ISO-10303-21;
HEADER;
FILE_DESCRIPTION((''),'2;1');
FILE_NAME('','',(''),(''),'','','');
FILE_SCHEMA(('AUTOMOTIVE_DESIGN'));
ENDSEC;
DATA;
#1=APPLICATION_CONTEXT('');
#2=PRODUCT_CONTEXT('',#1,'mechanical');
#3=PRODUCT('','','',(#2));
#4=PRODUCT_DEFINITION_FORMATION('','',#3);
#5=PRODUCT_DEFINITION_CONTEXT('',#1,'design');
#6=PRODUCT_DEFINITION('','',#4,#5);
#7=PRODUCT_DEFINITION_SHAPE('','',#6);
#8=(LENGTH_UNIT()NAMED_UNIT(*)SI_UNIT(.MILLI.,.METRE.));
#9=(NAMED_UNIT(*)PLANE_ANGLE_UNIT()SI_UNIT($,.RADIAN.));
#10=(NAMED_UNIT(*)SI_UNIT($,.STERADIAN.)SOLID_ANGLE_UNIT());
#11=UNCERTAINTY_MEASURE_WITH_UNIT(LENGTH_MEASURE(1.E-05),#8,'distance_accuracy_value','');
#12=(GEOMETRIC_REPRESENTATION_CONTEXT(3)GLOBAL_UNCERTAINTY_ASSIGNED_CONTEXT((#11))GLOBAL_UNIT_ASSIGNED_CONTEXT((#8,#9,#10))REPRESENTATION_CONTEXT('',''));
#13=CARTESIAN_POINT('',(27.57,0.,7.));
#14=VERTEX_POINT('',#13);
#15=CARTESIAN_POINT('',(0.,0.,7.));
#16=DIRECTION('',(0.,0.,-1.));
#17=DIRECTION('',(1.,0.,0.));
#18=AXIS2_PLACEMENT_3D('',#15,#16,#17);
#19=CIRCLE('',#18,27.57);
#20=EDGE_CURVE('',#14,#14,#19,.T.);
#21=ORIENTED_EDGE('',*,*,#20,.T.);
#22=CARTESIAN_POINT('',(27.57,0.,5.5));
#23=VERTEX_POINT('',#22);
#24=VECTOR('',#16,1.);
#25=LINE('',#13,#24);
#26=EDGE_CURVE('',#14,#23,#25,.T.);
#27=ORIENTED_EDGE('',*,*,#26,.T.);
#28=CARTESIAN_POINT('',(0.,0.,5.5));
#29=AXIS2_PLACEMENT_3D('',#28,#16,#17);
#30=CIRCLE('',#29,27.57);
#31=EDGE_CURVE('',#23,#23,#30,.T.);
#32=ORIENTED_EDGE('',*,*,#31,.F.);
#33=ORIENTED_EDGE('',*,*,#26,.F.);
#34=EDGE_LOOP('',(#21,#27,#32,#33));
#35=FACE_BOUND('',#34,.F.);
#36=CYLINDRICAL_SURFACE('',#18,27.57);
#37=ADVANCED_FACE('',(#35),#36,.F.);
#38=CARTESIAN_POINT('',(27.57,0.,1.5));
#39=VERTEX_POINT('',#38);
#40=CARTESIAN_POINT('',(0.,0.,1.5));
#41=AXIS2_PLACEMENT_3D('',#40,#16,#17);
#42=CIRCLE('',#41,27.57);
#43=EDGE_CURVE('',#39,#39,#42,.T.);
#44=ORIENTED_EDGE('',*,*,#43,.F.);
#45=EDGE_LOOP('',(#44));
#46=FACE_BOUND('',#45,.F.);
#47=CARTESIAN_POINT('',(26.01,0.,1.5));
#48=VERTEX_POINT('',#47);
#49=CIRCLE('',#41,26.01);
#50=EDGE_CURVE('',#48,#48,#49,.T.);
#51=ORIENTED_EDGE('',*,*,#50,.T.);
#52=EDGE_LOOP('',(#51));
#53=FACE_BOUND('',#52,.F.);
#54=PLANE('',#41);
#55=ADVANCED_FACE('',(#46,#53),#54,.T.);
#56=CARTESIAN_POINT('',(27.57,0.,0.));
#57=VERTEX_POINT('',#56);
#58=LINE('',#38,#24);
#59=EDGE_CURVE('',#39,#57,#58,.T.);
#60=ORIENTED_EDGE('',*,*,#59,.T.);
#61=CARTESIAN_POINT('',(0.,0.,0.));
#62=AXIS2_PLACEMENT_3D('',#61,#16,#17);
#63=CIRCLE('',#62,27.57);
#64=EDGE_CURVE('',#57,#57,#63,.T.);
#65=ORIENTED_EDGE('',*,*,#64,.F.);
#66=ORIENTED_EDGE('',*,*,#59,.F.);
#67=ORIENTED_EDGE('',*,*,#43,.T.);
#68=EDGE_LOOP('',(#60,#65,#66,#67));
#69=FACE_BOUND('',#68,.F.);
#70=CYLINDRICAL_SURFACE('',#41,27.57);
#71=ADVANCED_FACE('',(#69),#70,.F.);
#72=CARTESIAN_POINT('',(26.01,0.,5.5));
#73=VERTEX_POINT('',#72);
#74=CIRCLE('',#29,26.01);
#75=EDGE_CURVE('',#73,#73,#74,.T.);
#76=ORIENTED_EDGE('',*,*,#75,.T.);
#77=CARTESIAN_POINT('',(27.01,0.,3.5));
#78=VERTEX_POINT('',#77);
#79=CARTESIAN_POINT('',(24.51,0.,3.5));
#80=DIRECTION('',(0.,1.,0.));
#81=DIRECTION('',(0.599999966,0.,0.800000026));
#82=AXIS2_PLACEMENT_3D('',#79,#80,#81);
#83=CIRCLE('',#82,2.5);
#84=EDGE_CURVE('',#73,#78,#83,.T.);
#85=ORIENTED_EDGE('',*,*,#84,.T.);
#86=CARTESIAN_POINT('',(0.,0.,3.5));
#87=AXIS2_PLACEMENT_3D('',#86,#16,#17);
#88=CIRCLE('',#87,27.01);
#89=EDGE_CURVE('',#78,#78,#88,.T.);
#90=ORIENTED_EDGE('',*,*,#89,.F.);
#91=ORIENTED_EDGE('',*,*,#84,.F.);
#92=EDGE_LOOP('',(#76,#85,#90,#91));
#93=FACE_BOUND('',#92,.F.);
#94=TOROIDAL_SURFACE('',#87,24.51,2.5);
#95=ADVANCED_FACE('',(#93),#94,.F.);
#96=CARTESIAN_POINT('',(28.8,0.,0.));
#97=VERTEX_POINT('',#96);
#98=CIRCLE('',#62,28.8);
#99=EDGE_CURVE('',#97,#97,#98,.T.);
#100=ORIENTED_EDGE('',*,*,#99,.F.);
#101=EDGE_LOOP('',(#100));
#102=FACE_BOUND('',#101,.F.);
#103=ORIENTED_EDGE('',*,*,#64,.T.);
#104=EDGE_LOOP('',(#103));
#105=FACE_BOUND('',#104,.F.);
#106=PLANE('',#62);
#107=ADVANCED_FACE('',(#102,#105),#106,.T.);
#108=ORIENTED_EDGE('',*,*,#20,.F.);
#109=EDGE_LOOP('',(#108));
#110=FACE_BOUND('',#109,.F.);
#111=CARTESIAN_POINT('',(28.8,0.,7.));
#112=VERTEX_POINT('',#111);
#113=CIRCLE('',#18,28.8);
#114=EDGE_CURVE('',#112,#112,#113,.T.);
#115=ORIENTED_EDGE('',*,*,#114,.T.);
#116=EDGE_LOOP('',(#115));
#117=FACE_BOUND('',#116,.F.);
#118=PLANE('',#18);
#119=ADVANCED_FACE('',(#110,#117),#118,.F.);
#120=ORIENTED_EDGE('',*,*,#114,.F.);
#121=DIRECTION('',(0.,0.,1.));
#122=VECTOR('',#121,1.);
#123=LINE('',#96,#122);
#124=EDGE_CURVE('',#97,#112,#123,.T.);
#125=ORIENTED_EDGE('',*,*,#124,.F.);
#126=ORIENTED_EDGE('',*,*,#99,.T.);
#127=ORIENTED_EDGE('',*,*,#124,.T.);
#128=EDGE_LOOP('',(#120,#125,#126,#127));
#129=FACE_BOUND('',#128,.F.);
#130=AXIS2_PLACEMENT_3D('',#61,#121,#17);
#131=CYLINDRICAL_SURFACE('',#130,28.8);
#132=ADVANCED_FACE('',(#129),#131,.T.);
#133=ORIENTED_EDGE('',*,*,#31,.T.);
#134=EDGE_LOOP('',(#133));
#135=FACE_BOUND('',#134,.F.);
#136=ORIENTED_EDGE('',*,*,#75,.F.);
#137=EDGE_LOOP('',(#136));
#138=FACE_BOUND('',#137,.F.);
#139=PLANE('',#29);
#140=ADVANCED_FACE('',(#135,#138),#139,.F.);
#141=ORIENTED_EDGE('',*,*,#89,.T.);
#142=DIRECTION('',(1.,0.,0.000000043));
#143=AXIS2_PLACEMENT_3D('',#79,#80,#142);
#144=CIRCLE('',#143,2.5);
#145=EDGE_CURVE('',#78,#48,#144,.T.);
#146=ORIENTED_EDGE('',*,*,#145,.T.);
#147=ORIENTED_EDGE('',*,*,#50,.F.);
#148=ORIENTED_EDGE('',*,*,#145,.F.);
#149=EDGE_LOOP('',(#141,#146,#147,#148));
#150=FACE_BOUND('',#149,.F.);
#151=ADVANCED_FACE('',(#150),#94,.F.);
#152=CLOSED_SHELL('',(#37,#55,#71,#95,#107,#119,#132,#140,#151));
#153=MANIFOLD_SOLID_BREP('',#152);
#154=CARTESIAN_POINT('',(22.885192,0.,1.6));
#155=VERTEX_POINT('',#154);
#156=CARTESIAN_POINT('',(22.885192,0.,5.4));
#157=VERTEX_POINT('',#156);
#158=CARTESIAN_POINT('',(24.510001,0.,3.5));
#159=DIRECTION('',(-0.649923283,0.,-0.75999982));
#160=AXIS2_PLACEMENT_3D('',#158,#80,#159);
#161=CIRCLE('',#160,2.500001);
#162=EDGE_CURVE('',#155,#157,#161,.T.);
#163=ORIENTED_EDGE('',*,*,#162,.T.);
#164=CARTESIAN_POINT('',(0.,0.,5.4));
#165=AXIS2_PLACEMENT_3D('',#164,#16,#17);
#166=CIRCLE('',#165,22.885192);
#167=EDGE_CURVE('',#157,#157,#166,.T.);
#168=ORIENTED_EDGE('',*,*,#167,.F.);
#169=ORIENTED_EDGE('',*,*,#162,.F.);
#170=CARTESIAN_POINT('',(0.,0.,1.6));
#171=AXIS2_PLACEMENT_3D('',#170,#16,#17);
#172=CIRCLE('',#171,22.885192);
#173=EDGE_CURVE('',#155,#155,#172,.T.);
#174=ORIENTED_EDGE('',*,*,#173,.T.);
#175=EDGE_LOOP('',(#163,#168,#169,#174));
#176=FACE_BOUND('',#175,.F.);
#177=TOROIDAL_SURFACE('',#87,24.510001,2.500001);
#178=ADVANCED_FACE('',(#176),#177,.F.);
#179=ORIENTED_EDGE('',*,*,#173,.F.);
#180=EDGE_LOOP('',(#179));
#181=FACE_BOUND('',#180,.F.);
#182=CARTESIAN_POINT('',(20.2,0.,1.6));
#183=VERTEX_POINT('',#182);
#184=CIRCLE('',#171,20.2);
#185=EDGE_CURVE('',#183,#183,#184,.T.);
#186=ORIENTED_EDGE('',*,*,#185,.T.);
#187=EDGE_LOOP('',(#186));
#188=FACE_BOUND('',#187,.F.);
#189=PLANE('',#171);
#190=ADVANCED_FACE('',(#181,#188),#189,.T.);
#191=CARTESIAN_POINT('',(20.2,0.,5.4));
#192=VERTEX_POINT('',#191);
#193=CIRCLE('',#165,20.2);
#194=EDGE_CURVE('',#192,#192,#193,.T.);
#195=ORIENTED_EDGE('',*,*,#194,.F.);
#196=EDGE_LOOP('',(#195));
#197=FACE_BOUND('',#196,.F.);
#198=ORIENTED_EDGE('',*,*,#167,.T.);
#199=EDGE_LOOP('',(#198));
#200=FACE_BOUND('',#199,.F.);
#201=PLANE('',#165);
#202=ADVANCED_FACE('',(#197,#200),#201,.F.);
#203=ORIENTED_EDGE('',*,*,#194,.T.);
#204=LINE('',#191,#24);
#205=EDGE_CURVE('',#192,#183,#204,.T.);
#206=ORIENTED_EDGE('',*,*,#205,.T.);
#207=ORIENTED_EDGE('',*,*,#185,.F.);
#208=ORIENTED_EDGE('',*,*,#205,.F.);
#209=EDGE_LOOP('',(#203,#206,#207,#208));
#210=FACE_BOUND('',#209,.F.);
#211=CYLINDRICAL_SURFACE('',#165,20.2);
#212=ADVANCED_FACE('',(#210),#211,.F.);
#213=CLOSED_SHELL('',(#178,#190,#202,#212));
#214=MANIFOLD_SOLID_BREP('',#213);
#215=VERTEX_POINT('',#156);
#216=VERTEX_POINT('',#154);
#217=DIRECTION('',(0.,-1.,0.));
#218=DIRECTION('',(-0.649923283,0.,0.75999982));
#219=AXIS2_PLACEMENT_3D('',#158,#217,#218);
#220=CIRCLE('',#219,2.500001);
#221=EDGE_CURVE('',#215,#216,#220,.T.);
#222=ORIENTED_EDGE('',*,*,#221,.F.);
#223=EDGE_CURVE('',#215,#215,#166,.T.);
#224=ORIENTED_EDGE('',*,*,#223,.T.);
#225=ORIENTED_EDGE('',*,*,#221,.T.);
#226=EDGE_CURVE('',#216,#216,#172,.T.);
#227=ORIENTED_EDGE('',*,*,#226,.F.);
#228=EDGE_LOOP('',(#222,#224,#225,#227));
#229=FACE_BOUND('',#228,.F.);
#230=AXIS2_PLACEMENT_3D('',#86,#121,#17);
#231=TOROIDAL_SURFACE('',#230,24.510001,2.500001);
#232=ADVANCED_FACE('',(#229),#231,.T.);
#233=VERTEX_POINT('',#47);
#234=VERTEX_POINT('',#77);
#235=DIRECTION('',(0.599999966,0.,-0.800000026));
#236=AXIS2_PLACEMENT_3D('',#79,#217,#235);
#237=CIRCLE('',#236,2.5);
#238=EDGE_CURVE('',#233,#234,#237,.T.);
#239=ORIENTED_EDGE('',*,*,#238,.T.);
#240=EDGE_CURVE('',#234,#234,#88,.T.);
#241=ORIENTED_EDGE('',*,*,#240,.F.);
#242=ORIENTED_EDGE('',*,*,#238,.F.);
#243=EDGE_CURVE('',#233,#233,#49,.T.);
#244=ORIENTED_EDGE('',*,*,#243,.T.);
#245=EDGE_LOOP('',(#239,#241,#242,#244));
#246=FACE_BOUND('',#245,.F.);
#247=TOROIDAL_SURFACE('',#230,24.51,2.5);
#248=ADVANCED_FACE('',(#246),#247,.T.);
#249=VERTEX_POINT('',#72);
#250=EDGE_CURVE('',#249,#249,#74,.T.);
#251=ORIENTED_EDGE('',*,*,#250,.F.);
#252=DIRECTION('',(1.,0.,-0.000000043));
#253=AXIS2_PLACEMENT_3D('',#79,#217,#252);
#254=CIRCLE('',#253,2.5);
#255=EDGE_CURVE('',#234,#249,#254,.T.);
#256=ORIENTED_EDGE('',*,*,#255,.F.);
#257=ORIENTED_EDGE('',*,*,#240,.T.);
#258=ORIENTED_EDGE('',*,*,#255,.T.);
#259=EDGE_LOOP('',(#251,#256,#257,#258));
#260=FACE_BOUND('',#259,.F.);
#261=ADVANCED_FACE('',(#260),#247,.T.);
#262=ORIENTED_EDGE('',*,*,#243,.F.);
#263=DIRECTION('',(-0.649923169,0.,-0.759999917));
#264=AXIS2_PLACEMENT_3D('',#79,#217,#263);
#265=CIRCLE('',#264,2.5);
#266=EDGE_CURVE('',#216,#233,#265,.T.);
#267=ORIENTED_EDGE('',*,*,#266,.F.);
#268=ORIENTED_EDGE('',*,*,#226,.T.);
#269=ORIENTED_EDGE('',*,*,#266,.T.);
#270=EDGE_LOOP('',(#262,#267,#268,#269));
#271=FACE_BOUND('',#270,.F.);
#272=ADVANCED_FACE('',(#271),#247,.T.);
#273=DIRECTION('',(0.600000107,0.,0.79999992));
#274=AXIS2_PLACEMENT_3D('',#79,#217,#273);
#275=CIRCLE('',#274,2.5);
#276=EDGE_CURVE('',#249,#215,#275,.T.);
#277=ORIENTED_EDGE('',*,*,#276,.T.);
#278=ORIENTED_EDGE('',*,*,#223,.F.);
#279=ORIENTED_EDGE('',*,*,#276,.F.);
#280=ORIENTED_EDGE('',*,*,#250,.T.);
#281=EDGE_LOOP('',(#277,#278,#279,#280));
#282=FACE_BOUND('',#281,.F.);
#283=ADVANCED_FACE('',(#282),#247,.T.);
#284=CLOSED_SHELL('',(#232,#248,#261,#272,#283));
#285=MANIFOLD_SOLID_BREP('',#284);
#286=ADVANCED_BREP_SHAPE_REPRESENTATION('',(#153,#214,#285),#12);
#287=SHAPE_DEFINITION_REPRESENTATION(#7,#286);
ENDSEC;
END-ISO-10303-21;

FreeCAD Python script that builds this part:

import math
import FreeCAD as App
import Part
import Sketcher
Q = App.Units.Quantity

doc = App.newDocument("Part")
body = doc.addObject("PartDesign::Body", "Body")

# Sketch on XZ plane
sketch1 = body.newObject("Sketcher::SketchObject", "Sketch")
sketch1.AttachmentSupport = (doc.getObject("XZ_Plane"), [""])
sketch1.MapMode = "FlatFace"
sketch1.addGeometry([
    Part.LineSegment(App.Vector(28.8, 0, 0), App.Vector(28.8, 7, 0)),  # 0
    Part.LineSegment(App.Vector(28.8, 7, 0), App.Vector(27.57, 7, 0)),  # 1
    Part.LineSegment(App.Vector(27.57, 7, 0), App.Vector(27.57, 5.5, 0)),  # 2
    Part.LineSegment(App.Vector(27.57, 5.5, 0), App.Vector(26.01, 5.5, 0)),  # 3
    Part.ArcOfCircle(Part.Circle(App.Vector(24.51, 3.5, 0), App.Vector(0, 0, 1), 2.5), math.radians(-0.000002), math.radians(53.130105)),  # 4
    Part.ArcOfCircle(Part.Circle(App.Vector(24.51, 3.5, 0), App.Vector(0, 0, 1), 2.5), math.radians(-53.130105), math.radians(0.000002)),  # 5
    Part.LineSegment(App.Vector(26.01, 1.5, 0), App.Vector(27.57, 1.5, 0)),  # 6
    Part.LineSegment(App.Vector(27.57, 1.5, 0), App.Vector(27.57, 0, 0)),  # 7
    Part.LineSegment(App.Vector(27.57, 0, 0), App.Vector(28.8, 0, 0)),  # 8
], False)
sketch1.addConstraint([
    Sketcher.Constraint("Coincident", 0, 2, 1, 1),
    Sketcher.Constraint("Coincident", 1, 2, 2, 1),
    Sketcher.Constraint("Coincident", 2, 2, 3, 1),
    Sketcher.Constraint("Coincident", 3, 2, 4, 2),
    Sketcher.Constraint("Tangent", 4, 1, 5, 2),
    Sketcher.Constraint("Coincident", 5, 1, 6, 1),
    Sketcher.Constraint("Coincident", 6, 2, 7, 1),
    Sketcher.Constraint("Coincident", 7, 2, 8, 1),
    Sketcher.Constraint("Coincident", 8, 2, 0, 1),
    Sketcher.Constraint("Vertical", 0),
    Sketcher.Constraint("Horizontal", 1),
    Sketcher.Constraint("Vertical", 2),
    Sketcher.Constraint("Horizontal", 3),
    Sketcher.Constraint("Horizontal", 6),
    Sketcher.Constraint("Vertical", 7),
    Sketcher.Constraint("Horizontal", 8),
    Sketcher.Constraint("Equal", 4, 5),
    Sketcher.Constraint("PointOnObject", 7, 2, -1),
    Sketcher.Constraint("Horizontal", 5, 3, 4, 1),
    Sketcher.Constraint("Vertical", 3, 2, 5, 1),
    Sketcher.Constraint("Vertical", 2, 2, 6, 2),
    Sketcher.Constraint("Equal", 2, 7),
    Sketcher.Constraint("Radius", 4, Q("2.5 mm")),
    Sketcher.Constraint("DistanceY", 0, 1, 0, 2, Q("7 mm")),
    Sketcher.Constraint("DistanceY", 2, 2, 2, 1, Q("1.5 mm")),
    Sketcher.Constraint("DistanceX", 1, 2, 1, 1, Q("1.23 mm")),
    Sketcher.Constraint("DistanceX", 3, 2, 3, 1, Q("1.56 mm")),
    Sketcher.Constraint("DistanceX", -1, 1, 0, 2, Q("28.8 mm")),
])
revolution = body.newObject("PartDesign::Revolution", "Revolution")
revolution.Profile = sketch1
revolution.ReferenceAxis = (sketch1, ["V_Axis"])
revolution.Angle = 360
body2 = doc.addObject("PartDesign::Body", "Body001")

# Sketch on XZ plane
sketch2 = body2.newObject("Sketcher::SketchObject", "Sketch001")
sketch2.AttachmentSupport = (doc.getObject("XZ_Plane001"), [""])
sketch2.MapMode = "FlatFace"
sketch2.addGeometry([
    Part.ArcOfCircle(Part.Circle(App.Vector(24.510001, 3.5, 0), App.Vector(0, 0, 1), 2.500001), math.radians(130.535818), math.radians(229.464182)),
    Part.LineSegment(App.Vector(22.885192, 5.4, 0), App.Vector(20.2, 5.4, 0)),
    Part.LineSegment(App.Vector(20.2, 5.4, 0), App.Vector(20.2, 1.6, 0)),
    Part.LineSegment(App.Vector(20.2, 1.6, 0), App.Vector(22.885192, 1.6, 0)),
], False)
sketch2.addConstraint([
    Sketcher.Constraint("Coincident", 0, 1, 1, 1),
    Sketcher.Constraint("Coincident", 1, 2, 2, 1),
    Sketcher.Constraint("Coincident", 2, 2, 3, 1),
    Sketcher.Constraint("Coincident", 3, 2, 0, 2),
    Sketcher.Constraint("Horizontal", 1),
    Sketcher.Constraint("Vertical", 2),
    Sketcher.Constraint("Horizontal", 3),
    Sketcher.Constraint("Vertical", 0, 1, 3, 2),
    Sketcher.Constraint("Radius", 0, Q("2.500001 mm")),
    Sketcher.Constraint("DistanceY", 2, 2, 2, 1, Q("3.8 mm")),
    Sketcher.Constraint("DistanceY", -1, 1, 0, 3, Q("3.5 mm")),
    Sketcher.Constraint("DistanceX", -1, 1, 1, 2, Q("20.2 mm")),
    Sketcher.Constraint("DistanceX", -1, 1, 0, 3, Q("24.510001 mm")),
])
revolution2 = body2.newObject("PartDesign::Revolution", "Revolution001")
revolution2.Profile = sketch2
revolution2.ReferenceAxis = (sketch2, ["V_Axis"])
revolution2.Angle = 360
body3 = doc.addObject("PartDesign::Body", "Body002")

# Sketch on XZ plane
sketch3 = body3.newObject("Sketcher::SketchObject", "Sketch002")
sketch3.AttachmentSupport = (doc.getObject("XZ_Plane002"), [""])
sketch3.MapMode = "FlatFace"
sketch3.addGeometry([
    Part.ArcOfCircle(Part.Circle(App.Vector(24.51, 3.5, 0), App.Vector(0, 0, 1), 2.5), math.radians(-0.000002), math.radians(53.130105)),  # 0
    Part.ArcOfCircle(Part.Circle(App.Vector(24.51, 3.5, 0), App.Vector(0, 0, 1), 2.5), math.radians(53.130095), math.radians(130.535809)),  # 1
    Part.ArcOfCircle(Part.Circle(App.Vector(24.510001, 3.5, 0), App.Vector(0, 0, 1), 2.500001), math.radians(130.535818), math.radians(229.464182)),  # 2
    Part.ArcOfCircle(Part.Circle(App.Vector(24.51, 3.5, 0), App.Vector(0, 0, 1), 2.5), math.radians(-130.535809), math.radians(-53.130095)),  # 3
    Part.ArcOfCircle(Part.Circle(App.Vector(24.51, 3.5, 0), App.Vector(0, 0, 1), 2.5), math.radians(-53.130105), math.radians(0.000002)),  # 4
], False)
sketch3.addConstraint([
    Sketcher.Constraint("Tangent", 0, 2, 1, 1),
    Sketcher.Constraint("Tangent", 1, 2, 2, 1),
    Sketcher.Constraint("Tangent", 2, 2, 3, 1),
    Sketcher.Constraint("Tangent", 3, 2, 4, 1),
    Sketcher.Constraint("Tangent", 4, 2, 0, 1),
    Sketcher.Constraint("Coincident", 2, 3, 0, 3),
    Sketcher.Constraint("Horizontal", 3, 3, 4, 2),
    Sketcher.Constraint("Vertical", 1, 2, 2, 2),
    Sketcher.Constraint("Vertical", 0, 2, 3, 2),
    Sketcher.Constraint("Radius", 0, Q("2.5 mm")),
    Sketcher.Constraint("DistanceY", 2, 3, 0, 2, Q("2 mm")),
    Sketcher.Constraint("DistanceY", -1, 1, 0, 3, Q("3.5 mm")),
    Sketcher.Constraint("DistanceY", -1, 1, 1, 2, Q("5.4 mm")),
    Sketcher.Constraint("DistanceX", -1, 1, 0, 3, Q("24.51 mm")),
])
revolution3 = body3.newObject("PartDesign::Revolution", "Revolution002")
revolution3.Profile = sketch3
revolution3.ReferenceAxis = (sketch3, ["V_Axis"])
revolution3.Angle = 360

doc.recompute()
